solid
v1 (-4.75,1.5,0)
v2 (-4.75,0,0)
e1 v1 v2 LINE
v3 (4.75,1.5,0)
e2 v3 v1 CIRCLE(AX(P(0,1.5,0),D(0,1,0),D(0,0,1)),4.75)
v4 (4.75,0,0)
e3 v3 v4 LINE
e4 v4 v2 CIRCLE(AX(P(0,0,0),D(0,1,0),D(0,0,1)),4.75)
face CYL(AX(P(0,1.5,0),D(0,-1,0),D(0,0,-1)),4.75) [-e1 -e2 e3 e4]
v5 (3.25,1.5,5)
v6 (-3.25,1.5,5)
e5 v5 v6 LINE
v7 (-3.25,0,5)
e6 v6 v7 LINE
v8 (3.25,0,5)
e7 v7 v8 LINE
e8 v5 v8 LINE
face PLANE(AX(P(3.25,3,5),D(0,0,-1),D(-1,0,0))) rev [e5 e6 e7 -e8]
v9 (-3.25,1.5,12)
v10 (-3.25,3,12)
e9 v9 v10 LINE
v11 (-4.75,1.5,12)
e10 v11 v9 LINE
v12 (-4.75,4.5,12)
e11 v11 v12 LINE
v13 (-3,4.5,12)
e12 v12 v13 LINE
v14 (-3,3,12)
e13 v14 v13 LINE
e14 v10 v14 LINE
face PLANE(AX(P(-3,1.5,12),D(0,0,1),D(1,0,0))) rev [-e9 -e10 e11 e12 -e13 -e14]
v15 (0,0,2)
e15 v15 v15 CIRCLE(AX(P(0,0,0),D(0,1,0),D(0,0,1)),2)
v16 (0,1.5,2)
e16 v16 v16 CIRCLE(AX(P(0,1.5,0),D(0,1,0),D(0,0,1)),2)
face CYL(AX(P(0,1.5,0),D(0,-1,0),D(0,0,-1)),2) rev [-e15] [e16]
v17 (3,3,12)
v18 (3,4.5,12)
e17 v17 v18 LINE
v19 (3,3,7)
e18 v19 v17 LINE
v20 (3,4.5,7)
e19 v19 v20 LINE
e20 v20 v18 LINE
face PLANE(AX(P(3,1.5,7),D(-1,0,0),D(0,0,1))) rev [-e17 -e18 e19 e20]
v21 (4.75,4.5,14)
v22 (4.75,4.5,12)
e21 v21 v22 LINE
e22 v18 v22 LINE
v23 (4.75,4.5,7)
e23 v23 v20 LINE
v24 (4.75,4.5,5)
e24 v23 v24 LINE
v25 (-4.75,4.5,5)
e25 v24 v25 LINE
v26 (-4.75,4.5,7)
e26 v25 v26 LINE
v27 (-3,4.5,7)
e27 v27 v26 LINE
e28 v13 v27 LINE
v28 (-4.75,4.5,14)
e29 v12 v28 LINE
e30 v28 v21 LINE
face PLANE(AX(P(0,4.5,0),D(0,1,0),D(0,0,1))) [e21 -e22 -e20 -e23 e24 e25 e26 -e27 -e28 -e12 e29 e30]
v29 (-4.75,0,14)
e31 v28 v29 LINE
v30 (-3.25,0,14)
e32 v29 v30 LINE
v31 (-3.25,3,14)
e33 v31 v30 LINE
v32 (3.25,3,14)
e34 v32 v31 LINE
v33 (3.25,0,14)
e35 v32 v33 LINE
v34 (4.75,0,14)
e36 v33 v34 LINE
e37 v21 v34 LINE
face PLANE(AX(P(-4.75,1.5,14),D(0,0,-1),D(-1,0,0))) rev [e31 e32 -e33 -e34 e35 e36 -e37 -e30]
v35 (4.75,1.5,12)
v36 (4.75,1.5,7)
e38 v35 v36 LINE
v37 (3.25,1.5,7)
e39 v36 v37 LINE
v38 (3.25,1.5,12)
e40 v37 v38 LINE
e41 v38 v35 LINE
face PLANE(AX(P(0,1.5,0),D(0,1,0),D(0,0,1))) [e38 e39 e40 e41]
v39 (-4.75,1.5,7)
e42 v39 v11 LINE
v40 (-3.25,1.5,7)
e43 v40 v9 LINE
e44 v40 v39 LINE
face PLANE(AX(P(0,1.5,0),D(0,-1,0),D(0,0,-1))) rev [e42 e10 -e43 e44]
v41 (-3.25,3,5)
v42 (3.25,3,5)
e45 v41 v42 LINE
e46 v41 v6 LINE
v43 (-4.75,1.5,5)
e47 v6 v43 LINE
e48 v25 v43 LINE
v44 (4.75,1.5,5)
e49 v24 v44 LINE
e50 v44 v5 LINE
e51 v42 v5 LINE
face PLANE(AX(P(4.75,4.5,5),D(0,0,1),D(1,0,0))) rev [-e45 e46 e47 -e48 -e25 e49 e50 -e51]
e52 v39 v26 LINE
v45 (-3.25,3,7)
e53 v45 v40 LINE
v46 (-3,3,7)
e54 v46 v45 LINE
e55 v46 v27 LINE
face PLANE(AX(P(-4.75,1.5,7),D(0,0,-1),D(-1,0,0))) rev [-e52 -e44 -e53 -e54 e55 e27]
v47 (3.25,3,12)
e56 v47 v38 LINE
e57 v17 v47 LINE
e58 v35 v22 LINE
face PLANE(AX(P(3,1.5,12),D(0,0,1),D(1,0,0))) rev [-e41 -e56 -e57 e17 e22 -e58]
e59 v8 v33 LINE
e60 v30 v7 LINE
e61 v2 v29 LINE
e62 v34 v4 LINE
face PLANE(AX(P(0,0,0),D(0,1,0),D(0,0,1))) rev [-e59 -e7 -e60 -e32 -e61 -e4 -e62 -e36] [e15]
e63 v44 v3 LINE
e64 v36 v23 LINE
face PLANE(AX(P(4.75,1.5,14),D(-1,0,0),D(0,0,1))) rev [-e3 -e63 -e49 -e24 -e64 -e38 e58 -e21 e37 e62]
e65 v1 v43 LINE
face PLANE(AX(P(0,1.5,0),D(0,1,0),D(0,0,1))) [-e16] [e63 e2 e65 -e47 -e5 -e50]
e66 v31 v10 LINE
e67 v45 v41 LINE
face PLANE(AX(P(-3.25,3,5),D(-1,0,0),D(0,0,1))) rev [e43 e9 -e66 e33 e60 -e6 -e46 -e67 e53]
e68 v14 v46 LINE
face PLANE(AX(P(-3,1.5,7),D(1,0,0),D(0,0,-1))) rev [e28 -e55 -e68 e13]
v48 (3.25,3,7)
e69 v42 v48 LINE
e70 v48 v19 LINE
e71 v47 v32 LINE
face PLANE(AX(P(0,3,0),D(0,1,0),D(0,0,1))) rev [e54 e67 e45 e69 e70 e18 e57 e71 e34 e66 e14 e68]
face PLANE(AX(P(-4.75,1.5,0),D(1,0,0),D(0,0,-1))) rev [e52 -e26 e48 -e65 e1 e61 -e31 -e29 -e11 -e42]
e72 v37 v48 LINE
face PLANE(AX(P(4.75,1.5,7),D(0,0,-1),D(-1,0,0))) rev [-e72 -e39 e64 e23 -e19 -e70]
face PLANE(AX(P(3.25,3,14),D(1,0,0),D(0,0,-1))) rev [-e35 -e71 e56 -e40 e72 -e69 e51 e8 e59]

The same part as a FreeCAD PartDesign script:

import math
import FreeCAD as App
import Part
import Sketcher
from FreeCAD import Vector

doc = App.newDocument("Part")
body = doc.addObject("PartDesign::Body", "Body")

sketch1 = body.newObject("Sketcher::SketchObject", "Sketch")
sketch1.AttachmentSupport = (doc.getObject("XZ_Plane"), [""])
sketch1.MapMode = "FlatFace"
sketch1.addGeometry([
    Part.LineSegment(Vector(-4.8, 0, 0), Vector(-4.8, 14, 0)),
    Part.LineSegment(Vector(-4.8, 14, 0), Vector(4.8, 14, 0)),
    Part.LineSegment(Vector(4.8, 14, 0), Vector(4.8, 0, 0)),
    Part.ArcOfCircle(Part.Circle(Vector(0, 0, 0), Vector(0, 0, 1), 4.8), math.radians(180), math.radians(360)),
    Part.Circle(Vector(0, 0, 0), Vector(0, 0, 1), 2),
], False)
sketch1.addConstraint([
    Sketcher.Constraint("Coincident", 0, 2, 1, 1),
    Sketcher.Constraint("Coincident", 1, 2, 2, 1),
    Sketcher.Constraint("Tangent", 2, 2, 3, 2),
    Sketcher.Constraint("Tangent", 3, 1, 0, 1),
    Sketcher.Constraint("Vertical", 0),
    Sketcher.Constraint("Horizontal", 1),
    Sketcher.Constraint("Vertical", 2),
    Sketcher.Constraint("Coincident", 3, 3, -1, 1),
    Sketcher.Constraint("Coincident", 4, 3, -1, 1),
    Sketcher.Constraint("Diameter", 4, 4.0),
    Sketcher.Constraint("DistanceY", 0, 1, 0, 2, 14.0),
    Sketcher.Constraint("Radius", 3, 4.75),
])
pad1 = body.newObject("PartDesign::Pad", "Pad")
pad1.Profile = sketch1
pad1.Length = 1.5
pad1.Reversed = True

sketch2 = body.newObject("Sketcher::SketchObject", "Sketch001")
sketch2.AttachmentSupport = (doc.getObject("XZ_Plane"), [""])
sketch2.MapMode = "FlatFace"
sketch2.AttachmentOffset = App.Placement(Vector(0, 0, -1.5), App.Rotation())
sketch2.addGeometry([
    Part.LineSegment(Vector(-5, 5, 0), Vector(-5, 14, 0)),
    Part.LineSegment(Vector(-5, 14, 0), Vector(5, 14, 0)),
    Part.LineSegment(Vector(5, 14, 0), Vector(5, 5, 0)),
    Part.LineSegment(Vector(5, 5, 0), Vector(-5, 5, 0)),
], False)
sketch2.addConstraint([
    Sketcher.Constraint("Coincident", 0, 2, 1, 1),
    Sketcher.Constraint("Coincident", 1, 2, 2, 1),
    Sketcher.Constraint("Coincident", 2, 2, 3, 1),
    Sketcher.Constraint("Coincident", 3, 2, 0, 1),
    Sketcher.Constraint("Vertical", 0),
    Sketcher.Constraint("Horizontal", 1),
    Sketcher.Constraint("Vertical", 2),
    Sketcher.Constraint("Horizontal", 3),
    Sketcher.Constraint("DistanceY", 0, 1, 0, 2, 9.0),
    Sketcher.Constraint("DistanceX", 1, 1, 1, 2, 9.5),
    Sketcher.Constraint("DistanceY", -1, 1, 0, 2, 14.0),
    Sketcher.Constraint("DistanceX", 0, 2, -1, 1, 4.75),
])
pad2 = body.newObject("PartDesign::Pad", "Pad001")
pad2.Profile = sketch2
pad2.Length = 3
pad2.Reversed = True

sketch3 = body.newObject("Sketcher::SketchObject", "Sketch002")
sketch3.AttachmentSupport = (doc.getObject("XZ_Plane"), [""])
sketch3.MapMode = "FlatFace"
sketch3.addGeometry([
    Part.LineSegment(Vector(-3, 14, 0), Vector(-3, 5, 0)),
    Part.LineSegment(Vector(-3, 5, 0), Vector(3, 5, 0)),
    Part.LineSegment(Vector(3, 5, 0), Vector(3, 14, 0)),
    Part.LineSegment(Vector(3, 14, 0), Vector(-3, 14, 0)),
], False)
sketch3.addConstraint([
    Sketcher.Constraint("Coincident", 0, 2, 1, 1),
    Sketcher.Constraint("Coincident", 1, 2, 2, 1),
    Sketcher.Constraint("Coincident", 2, 2, 3, 1),
    Sketcher.Constraint("Coincident", 3, 2, 0, 1),
    Sketcher.Constraint("Vertical", 0),
    Sketcher.Constraint("Horizontal", 1),
    Sketcher.Constraint("Vertical", 2),
    Sketcher.Constraint("Horizontal", 3),
    Sketcher.Constraint("DistanceY", 0, 2, 0, 1, 9.0),
    Sketcher.Constraint("DistanceX", 1, 1, 1, 2, 6.5),
    Sketcher.Constraint("DistanceY", -1, 1, 0, 2, 5.0),
    Sketcher.Constraint("DistanceX", 0, 2, -1, 1, 3.25),
])
pocket1 = body.newObject("PartDesign::Pocket", "Pocket")
pocket1.Profile = sketch3
pocket1.Length = 3

sketch4 = body.newObject("Sketcher::SketchObject", "Sketch003")
sketch4.AttachmentSupport = (doc.getObject("XZ_Plane"), [""])
sketch4.MapMode = "FlatFace"
sketch4.AttachmentOffset = App.Placement(Vector(0, 0, -4.5), App.Rotation())
sketch4.addGeometry([
    Part.LineSegment(Vector(-4.8, 7, 0), Vector(-4.8, 12, 0)),
    Part.LineSegment(Vector(-4.8, 12, 0), Vector(-3, 12, 0)),
    Part.LineSegment(Vector(-3, 12, 0), Vector(-3, 7, 0)),
    Part.LineSegment(Vector(-3, 7, 0), Vector(-4.8, 7, 0)),
    Part.LineSegment(Vector(3, 7, 0), Vector(3, 12, 0)),
    Part.LineSegment(Vector(3, 12, 0), Vector(4.8, 12, 0)),
    Part.LineSegment(Vector(4.8, 12, 0), Vector(4.8, 7, 0)),
    Part.LineSegment(Vector(4.8, 7, 0), Vector(3, 7, 0)),
], False)
sketch4.addConstraint([
    Sketcher.Constraint("Coincident", 0, 2, 1, 1),
    Sketcher.Constraint("Coincident", 1, 2, 2, 1),
    Sketcher.Constraint("Coincident", 2, 2, 3, 1),
    Sketcher.Constraint("Coincident", 3, 2, 0, 1),
    Sketcher.Constraint("Coincident", 4, 2, 5, 1),
    Sketcher.Constraint("Coincident", 5, 2, 6, 1),
    Sketcher.Constraint("Coincident", 6, 2, 7, 1),
    Sketcher.Constraint("Coincident", 7, 2, 4, 1),
    Sketcher.Constraint("Vertical", 0),
    Sketcher.Constraint("Horizontal", 1),
    Sketcher.Constraint("Vertical", 2),
    Sketcher.Constraint("Horizontal", 3),
    Sketcher.Constraint("Vertical", 4),
    Sketcher.Constraint("Horizontal", 5),
    Sketcher.Constraint("Vertical", 6),
    Sketcher.Constraint("Horizontal", 7),
    Sketcher.Constraint("Symmetric", 1, 2, 4, 2, -2),
    Sketcher.Constraint("Symmetric", 3, 2, 6, 2, -2),
    Sketcher.Constraint("DistanceY", 0, 1, 0, 2, 5.0),
    Sketcher.Constraint("DistanceY", -1, 1, 0, 2, 12.0),
    Sketcher.Constraint("DistanceX", 1, 2, -1, 1, 3.0),
    Sketcher.Constraint("DistanceX", 1, 1, 1, 2, 1.75),
])
pocket2 = body.newObject("PartDesign::Pocket", "Pocket001")
pocket2.Profile = sketch4
pocket2.Length = 3
pocket2.Reversed = True

doc.recompute()
